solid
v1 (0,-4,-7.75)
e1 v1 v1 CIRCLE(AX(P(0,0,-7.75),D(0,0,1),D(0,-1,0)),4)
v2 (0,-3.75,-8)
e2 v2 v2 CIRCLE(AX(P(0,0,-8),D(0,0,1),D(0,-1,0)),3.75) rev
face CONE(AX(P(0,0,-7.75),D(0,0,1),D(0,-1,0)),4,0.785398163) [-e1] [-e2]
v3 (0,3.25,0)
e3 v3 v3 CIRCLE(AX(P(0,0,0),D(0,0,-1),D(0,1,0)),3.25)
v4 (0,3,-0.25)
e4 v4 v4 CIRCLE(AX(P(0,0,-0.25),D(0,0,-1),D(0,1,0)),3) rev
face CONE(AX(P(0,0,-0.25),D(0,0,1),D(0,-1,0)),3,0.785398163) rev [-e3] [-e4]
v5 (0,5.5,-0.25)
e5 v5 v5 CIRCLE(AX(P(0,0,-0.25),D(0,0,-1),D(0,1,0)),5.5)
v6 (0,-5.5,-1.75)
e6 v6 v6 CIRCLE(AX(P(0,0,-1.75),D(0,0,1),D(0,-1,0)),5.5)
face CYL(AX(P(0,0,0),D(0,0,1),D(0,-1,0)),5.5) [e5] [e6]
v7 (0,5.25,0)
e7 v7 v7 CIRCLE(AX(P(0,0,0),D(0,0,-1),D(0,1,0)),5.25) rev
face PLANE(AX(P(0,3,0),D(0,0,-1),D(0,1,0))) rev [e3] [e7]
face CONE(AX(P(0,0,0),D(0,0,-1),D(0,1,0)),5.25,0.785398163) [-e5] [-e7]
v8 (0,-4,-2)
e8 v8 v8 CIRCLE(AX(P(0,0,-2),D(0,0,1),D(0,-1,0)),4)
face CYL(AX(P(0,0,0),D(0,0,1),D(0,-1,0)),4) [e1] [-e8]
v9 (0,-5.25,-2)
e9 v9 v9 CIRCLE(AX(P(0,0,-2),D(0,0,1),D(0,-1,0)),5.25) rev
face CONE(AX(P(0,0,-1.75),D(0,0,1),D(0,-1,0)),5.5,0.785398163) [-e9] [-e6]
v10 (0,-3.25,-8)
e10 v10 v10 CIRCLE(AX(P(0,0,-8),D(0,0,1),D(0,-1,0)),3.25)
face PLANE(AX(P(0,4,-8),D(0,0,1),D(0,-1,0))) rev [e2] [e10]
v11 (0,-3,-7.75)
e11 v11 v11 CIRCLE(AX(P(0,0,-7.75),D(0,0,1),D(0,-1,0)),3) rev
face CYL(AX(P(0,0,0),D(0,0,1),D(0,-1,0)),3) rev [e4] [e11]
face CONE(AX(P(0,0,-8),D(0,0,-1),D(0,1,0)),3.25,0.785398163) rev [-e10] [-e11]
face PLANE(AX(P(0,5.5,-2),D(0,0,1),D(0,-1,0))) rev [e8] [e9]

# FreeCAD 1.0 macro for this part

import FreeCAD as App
import Part
import Sketcher

V = App.Vector


def edges_at(feature, points):
    """Names of the edges that pass closest to the given points."""
    edges = feature.Shape.Edges
    near = lambda p: min(range(len(edges)), key=lambda i: edges[i].distToShape(Part.Vertex(*p))[0])
    return sorted({f"Edge{near(p) + 1}" for p in points})


def add_polygon(sketch, points):
    """Adds a closed chain of lines whose ends are joined by coincident constraints."""
    first, n = sketch.GeometryCount, len(points)
    for a, b in zip(points, points[1:] + points[:1]):
        sketch.addGeometry(Part.LineSegment(App.Vector(*a, 0), App.Vector(*b, 0)), False)
    for i in range(n):
        sketch.addConstraint(Sketcher.Constraint("Coincident", first + i, 2, first + (i + 1) % n, 1))

doc = App.newDocument("Part")
body = doc.addObject("PartDesign::Body", "Body")

# Sketch on YZ plane
sketch1 = body.newObject("Sketcher::SketchObject", "Sketch")
sketch1.AttachmentSupport = (doc.getObject("YZ_Plane"), [""])
sketch1.MapMode = "FlatFace"
add_polygon(sketch1, [(5.5, 0), (3, 0), (3, -8), (4, -8), (4, -2), (5.5, -2)])  # lines 0-5
sketch1.addConstraint([
    Sketcher.Constraint("Horizontal", 0),
    Sketcher.Constraint("Vertical", 1),
    Sketcher.Constraint("Horizontal", 2),
    Sketcher.Constraint("Vertical", 3),
    Sketcher.Constraint("Horizontal", 4),
    Sketcher.Constraint("Vertical", 5),
    Sketcher.Constraint("PointOnObject", 0, 2, -1),
    Sketcher.Constraint("DistanceX", 2, 1, 2, 2, 1.0),
    Sketcher.Constraint("DistanceY", 1, 2, 1, 1, 8.0),
    Sketcher.Constraint("DistanceY", 3, 1, 3, 2, 6.0),
    Sketcher.Constraint("DistanceX", 0, 2, 0, 1, 2.5),
    Sketcher.Constraint("DistanceX", -1, 1, 0, 2, 3.0),
])
revolution = body.newObject("PartDesign::Revolution", "Revolution")
revolution.Profile = sketch1
revolution.ReferenceAxis = (sketch1, ["V_Axis"])
revolution.Angle = 360
doc.recompute()

chamfer = body.newObject("PartDesign::Chamfer", "Chamfer")
chamfer.Base = (revolution, edges_at(revolution, [
    (0, 3, -8),
    (0, 4, -8),
    (0, 5.5, -2),
    (0, 5.5, 0),
    (0, 3, 0),
]))
chamfer.Size = 0.25

doc.recompute()
